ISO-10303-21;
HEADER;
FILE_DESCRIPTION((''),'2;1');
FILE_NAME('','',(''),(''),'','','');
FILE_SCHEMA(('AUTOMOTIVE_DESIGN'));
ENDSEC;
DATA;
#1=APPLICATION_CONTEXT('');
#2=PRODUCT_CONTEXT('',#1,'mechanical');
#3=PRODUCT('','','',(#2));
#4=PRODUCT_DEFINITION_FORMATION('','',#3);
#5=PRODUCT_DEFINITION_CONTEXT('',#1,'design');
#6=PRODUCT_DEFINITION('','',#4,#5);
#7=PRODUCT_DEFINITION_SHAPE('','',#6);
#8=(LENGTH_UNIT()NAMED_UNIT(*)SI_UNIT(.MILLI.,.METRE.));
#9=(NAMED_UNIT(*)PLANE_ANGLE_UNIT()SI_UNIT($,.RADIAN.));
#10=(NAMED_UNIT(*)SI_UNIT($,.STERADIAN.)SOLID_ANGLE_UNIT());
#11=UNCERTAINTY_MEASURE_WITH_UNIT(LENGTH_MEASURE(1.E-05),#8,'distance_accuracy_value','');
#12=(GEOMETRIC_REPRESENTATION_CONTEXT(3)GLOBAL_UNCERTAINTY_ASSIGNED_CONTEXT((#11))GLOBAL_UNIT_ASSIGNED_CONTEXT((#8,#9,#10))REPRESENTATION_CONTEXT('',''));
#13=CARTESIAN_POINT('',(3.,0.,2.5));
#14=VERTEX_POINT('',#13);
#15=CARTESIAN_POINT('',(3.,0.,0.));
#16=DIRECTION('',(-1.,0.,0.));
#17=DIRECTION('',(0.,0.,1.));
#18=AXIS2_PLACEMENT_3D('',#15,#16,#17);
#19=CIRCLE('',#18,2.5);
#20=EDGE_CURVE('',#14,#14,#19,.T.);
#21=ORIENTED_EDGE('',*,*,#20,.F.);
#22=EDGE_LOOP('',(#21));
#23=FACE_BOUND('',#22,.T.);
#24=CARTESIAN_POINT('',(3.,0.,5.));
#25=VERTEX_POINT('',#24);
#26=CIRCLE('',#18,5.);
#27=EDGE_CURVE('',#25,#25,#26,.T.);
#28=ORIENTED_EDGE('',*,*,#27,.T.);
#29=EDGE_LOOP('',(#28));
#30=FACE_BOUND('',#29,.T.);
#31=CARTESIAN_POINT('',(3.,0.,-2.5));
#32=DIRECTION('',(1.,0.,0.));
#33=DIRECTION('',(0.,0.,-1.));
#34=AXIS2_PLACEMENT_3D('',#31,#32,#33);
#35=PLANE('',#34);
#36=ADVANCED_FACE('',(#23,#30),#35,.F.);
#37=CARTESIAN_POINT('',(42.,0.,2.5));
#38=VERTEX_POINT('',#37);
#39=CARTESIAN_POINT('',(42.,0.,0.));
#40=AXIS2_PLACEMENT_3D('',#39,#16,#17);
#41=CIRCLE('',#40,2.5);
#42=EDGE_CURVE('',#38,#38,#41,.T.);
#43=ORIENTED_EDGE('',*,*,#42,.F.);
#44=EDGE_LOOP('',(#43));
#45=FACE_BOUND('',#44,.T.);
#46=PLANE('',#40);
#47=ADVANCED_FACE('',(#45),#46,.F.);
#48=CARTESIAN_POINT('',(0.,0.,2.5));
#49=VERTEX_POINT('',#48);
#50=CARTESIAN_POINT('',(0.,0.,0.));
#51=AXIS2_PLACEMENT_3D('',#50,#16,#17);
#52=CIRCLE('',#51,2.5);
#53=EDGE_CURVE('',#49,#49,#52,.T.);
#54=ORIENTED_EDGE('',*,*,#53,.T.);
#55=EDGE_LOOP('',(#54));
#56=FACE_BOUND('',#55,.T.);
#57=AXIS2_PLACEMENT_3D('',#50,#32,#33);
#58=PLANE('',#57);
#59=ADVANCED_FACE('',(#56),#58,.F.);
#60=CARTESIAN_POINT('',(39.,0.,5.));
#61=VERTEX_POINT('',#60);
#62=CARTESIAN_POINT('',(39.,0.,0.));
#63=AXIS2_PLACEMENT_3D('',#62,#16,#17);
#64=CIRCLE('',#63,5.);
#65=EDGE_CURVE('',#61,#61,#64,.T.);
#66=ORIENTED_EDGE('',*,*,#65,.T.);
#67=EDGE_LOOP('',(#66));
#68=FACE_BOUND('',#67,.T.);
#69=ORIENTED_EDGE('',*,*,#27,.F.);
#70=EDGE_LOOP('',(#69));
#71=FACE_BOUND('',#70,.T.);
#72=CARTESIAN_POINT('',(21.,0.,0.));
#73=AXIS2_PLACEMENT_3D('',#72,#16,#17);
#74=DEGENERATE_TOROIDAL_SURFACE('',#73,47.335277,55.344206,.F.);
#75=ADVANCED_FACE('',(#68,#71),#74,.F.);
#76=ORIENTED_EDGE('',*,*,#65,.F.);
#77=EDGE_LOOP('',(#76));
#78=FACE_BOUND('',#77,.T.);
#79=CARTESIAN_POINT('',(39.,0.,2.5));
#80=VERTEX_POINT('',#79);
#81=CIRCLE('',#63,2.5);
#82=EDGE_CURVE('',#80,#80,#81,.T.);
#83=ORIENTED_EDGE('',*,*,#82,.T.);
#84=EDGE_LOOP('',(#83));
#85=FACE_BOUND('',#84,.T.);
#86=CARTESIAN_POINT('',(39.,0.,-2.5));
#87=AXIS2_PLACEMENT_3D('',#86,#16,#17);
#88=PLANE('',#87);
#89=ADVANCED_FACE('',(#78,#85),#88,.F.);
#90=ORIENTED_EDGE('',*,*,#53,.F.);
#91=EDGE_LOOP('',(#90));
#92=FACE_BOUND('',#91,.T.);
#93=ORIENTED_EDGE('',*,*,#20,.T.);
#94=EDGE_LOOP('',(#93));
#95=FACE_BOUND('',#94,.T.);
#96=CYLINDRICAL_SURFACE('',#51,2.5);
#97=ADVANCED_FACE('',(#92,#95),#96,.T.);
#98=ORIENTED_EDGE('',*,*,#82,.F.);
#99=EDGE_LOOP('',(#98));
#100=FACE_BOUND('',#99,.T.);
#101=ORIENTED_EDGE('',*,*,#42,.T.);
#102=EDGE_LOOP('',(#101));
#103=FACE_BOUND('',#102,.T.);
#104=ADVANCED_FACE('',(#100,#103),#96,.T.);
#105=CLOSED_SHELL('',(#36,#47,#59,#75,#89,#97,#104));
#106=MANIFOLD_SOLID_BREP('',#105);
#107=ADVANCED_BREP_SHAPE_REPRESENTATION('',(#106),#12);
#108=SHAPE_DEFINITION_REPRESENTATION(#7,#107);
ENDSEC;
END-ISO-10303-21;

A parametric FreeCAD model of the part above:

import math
import FreeCAD as App
import Part
import Sketcher
Q = App.Units.Quantity

doc = App.newDocument("Part")
body = doc.addObject("PartDesign::Body", "Body")

# Sketch on XZ plane
sketch1 = body.newObject("Sketcher::SketchObject", "Sketch")
sketch1.AttachmentSupport = (doc.getObject("XZ_Plane"), [""])
sketch1.MapMode = "FlatFace"
sketch1.addGeometry(Part.LineSegment(App.Vector(0, -2.5, 0), App.Vector(0, 0, 0)), False)
sketch1.addGeometry(Part.LineSegment(App.Vector(0, 0, 0), App.Vector(42, 0, 0)), False)
sketch1.addGeometry(Part.LineSegment(App.Vector(42, 0, 0), App.Vector(42, -2.5, 0)), False)
sketch1.addGeometry(Part.LineSegment(App.Vector(42, -2.5, 0), App.Vector(39, -2.5, 0)), False)
sketch1.addGeometry(Part.LineSegment(App.Vector(39, -2.5, 0), App.Vector(39, -5, 0)), False)
sketch1.addGeometry(Part.ArcOfCircle(Part.Circle(App.Vector(21, 47.3, 0), App.Vector(0, 0, 1), 55.3), math.radians(-109), math.radians(-71)), False)
sketch1.addGeometry(Part.LineSegment(App.Vector(3, -5, 0), App.Vector(3, -2.5, 0)), False)
sketch1.addGeometry(Part.LineSegment(App.Vector(3, -2.5, 0), App.Vector(0, -2.5, 0)), False)
sketch1.addConstraint(Sketcher.Constraint("Coincident", 0, 2, 1, 1))
sketch1.addConstraint(Sketcher.Constraint("Coincident", 1, 2, 2, 1))
sketch1.addConstraint(Sketcher.Constraint("Coincident", 2, 2, 3, 1))
sketch1.addConstraint(Sketcher.Constraint("Coincident", 3, 2, 4, 1))
sketch1.addConstraint(Sketcher.Constraint("Coincident", 4, 2, 5, 2))
sketch1.addConstraint(Sketcher.Constraint("Coincident", 5, 1, 6, 1))
sketch1.addConstraint(Sketcher.Constraint("Coincident", 6, 2, 7, 1))
sketch1.addConstraint(Sketcher.Constraint("Coincident", 7, 2, 0, 1))
sketch1.addConstraint(Sketcher.Constraint("Vertical", 0))
sketch1.addConstraint(Sketcher.Constraint("Horizontal", 1))
sketch1.addConstraint(Sketcher.Constraint("Vertical", 2))
sketch1.addConstraint(Sketcher.Constraint("Horizontal", 3))
sketch1.addConstraint(Sketcher.Constraint("Vertical", 4))
sketch1.addConstraint(Sketcher.Constraint("Vertical", 6))
sketch1.addConstraint(Sketcher.Constraint("Horizontal", 7))
sketch1.addConstraint(Sketcher.Constraint("Coincident", 0, 2, -1, 1))
sketch1.addConstraint(Sketcher.Constraint("Horizontal", 4, 2, 5, 1))
sketch1.addConstraint(Sketcher.Constraint("Horizontal", 3, 2, 6, 2))
sketch1.addConstraint(Sketcher.Constraint("Equal", 3, 7))
sketch1.addConstraint(Sketcher.Constraint("Equal", 2, 4))
sketch1.addConstraint(Sketcher.Constraint("DistanceX", 1, 1, 1, 2, Q("42 mm")))
sketch1.addConstraint(Sketcher.Constraint("DistanceX", 3, 2, 3, 1, Q("3 mm")))
sketch1.addConstraint(Sketcher.Constraint("DistanceY", 0, 1, 0, 2, Q("2.5 mm")))
sketch1.addConstraint(Sketcher.Constraint("Radius", 5, Q("55.344206 mm")))
revolution = body.newObject("PartDesign::Revolution", "Revolution")
revolution.Profile = sketch1
revolution.ReferenceAxis = (sketch1, ["H_Axis"])
revolution.Angle = 360

doc.recompute()
